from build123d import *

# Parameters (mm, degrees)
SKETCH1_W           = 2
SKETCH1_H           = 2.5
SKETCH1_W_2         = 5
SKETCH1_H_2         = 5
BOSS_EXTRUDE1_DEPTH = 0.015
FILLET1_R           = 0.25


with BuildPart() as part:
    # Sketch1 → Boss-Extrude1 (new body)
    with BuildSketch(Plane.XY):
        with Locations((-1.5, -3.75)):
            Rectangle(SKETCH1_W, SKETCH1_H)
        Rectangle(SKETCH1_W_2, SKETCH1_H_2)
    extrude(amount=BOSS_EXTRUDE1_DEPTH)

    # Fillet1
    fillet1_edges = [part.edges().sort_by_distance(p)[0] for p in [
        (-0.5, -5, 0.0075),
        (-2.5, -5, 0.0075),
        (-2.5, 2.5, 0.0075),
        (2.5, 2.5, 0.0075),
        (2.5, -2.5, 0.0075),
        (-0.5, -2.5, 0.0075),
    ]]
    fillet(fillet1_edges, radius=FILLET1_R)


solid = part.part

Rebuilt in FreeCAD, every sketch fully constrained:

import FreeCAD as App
import Part
import Sketcher

V = App.Vector
Q = App.Units.Quantity


def edges_at(feature, points):
    """Names of the edges that pass closest to the given points."""
    edges = feature.Shape.Edges
    near = lambda p: min(range(len(edges)), key=lambda i: edges[i].distToShape(Part.Vertex(*p))[0])
    return sorted({f"Edge{near(p) + 1}" for p in points})


def add_polygon(sketch, points):
    """Adds a closed chain of lines whose ends are joined by coincident constraints."""
    first, n = sketch.GeometryCount, len(points)
    for a, b in zip(points, points[1:] + points[:1]):
        sketch.addGeometry(Part.LineSegment(App.Vector(*a, 0), App.Vector(*b, 0)), False)
    for i in range(n):
        sketch.addConstraint(Sketcher.Constraint("Coincident", first + i, 2, first + (i + 1) % n, 1))

doc = App.newDocument("Part")
body = doc.addObject("PartDesign::Body", "Body")

# Sketch on XY plane
sketch1 = body.newObject("Sketcher::SketchObject", "Sketch")
sketch1.AttachmentSupport = (doc.getObject("XY_Plane"), [""])
sketch1.MapMode = "FlatFace"
add_polygon(sketch1, [(-2.5, -5), (-0.5, -5), (-0.5, -2.5), (2.5, -2.5), (2.5, 2.5), (-2.5, 2.5)])  # lines 0-5
sketch1.addConstraint([
    Sketcher.Constraint("Horizontal", 0),
    Sketcher.Constraint("Vertical", 1),
    Sketcher.Constraint("Horizontal", 2),
    Sketcher.Constraint("Vertical", 3),
    Sketcher.Constraint("Horizontal", 4),
    Sketcher.Constraint("Vertical", 5),
    Sketcher.Constraint("Symmetric", 2, 2, 4, 2, -1, 1),
    Sketcher.Constraint("Equal", 4, 3),
    Sketcher.Constraint("DistanceX", 0, 1, 0, 2, Q("2 mm")),
    Sketcher.Constraint("DistanceX", 2, 1, 2, 2, Q("3 mm")),
    Sketcher.Constraint("DistanceY", 1, 1, 1, 2, Q("2.5 mm")),
])
pad1 = body.newObject("PartDesign::Pad", "Pad")
pad1.Profile = sketch1
pad1.Length = 0.015
doc.recompute()

fillet = body.newObject("PartDesign::Fillet", "Fillet")
fillet.Base = (pad1, edges_at(pad1, [
    (-0.5, -5, 0.007),
    (-2.5, -5, 0.007),
    (-2.5, 2.5, 0.007),
    (2.5, 2.5, 0.007),
    (2.5, -2.5, 0.007),
    (-0.5, -2.5, 0.007),
]))
fillet.Radius = 0.25

doc.recompute()
